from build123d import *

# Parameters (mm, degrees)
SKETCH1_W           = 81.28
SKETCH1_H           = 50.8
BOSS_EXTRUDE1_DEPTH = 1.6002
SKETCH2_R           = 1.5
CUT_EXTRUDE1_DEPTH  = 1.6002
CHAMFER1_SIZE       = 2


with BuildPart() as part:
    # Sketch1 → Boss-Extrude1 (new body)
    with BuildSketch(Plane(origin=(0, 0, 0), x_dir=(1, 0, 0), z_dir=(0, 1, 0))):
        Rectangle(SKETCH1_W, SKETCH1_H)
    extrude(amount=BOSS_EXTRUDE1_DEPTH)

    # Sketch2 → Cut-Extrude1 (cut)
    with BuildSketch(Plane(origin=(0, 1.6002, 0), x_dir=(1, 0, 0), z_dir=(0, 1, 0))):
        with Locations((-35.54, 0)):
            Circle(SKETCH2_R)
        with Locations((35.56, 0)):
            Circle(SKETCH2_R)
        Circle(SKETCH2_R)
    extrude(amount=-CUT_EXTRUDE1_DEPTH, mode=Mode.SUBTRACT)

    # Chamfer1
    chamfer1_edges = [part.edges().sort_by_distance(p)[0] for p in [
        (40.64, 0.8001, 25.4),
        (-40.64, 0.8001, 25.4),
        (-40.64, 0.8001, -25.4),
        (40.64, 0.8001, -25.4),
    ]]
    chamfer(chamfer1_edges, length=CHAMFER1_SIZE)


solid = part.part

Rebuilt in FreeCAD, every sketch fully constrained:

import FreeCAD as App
import Part
import Sketcher
from FreeCAD import Vector
Q = App.Units.Quantity


def edges_at(feature, points):
    """Names of the edges that pass closest to the given points."""
    edges = feature.Shape.Edges
    near = lambda p: min(range(len(edges)), key=lambda i: edges[i].distToShape(Part.Vertex(*p))[0])
    return sorted({f"Edge{near(p) + 1}" for p in points})

doc = App.newDocument("Part")
body = doc.addObject("PartDesign::Body", "Body")

sketch1 = body.newObject("Sketcher::SketchObject", "Sketch")
sketch1.AttachmentSupport = (doc.getObject("XZ_Plane"), [""])
sketch1.MapMode = "FlatFace"
sketch1.addGeometry([
    Part.LineSegment(Vector(-41, -25, 0), Vector(-41, 25, 0)),
    Part.LineSegment(Vector(-41, 25, 0), Vector(41, 25, 0)),
    Part.LineSegment(Vector(41, 25, 0), Vector(41, -25, 0)),
    Part.LineSegment(Vector(41, -25, 0), Vector(-41, -25, 0)),
], False)
sketch1.addConstraint([
    Sketcher.Constraint("Coincident", 0, 2, 1, 1),
    Sketcher.Constraint("Coincident", 1, 2, 2, 1),
    Sketcher.Constraint("Coincident", 2, 2, 3, 1),
    Sketcher.Constraint("Coincident", 3, 2, 0, 1),
    Sketcher.Constraint("Vertical", 0),
    Sketcher.Constraint("Horizontal", 1),
    Sketcher.Constraint("Vertical", 2),
    Sketcher.Constraint("Horizontal", 3),
    Sketcher.Constraint("Symmetric", 0, 2, 2, 2, -1, 1),
    Sketcher.Constraint("DistanceY", 0, 1, 0, 2, Q("2 in")),
    Sketcher.Constraint("DistanceX", 1, 1, 1, 2, Q("3.2 in")),
])
pad1 = body.newObject("PartDesign::Pad", "Pad")
pad1.Profile = sketch1
pad1.Length = Q("0.063 in")
pad1.Reversed = True

sketch2 = body.newObject("Sketcher::SketchObject", "Sketch001")
sketch2.AttachmentSupport = (doc.getObject("XZ_Plane"), [""])
sketch2.MapMode = "FlatFace"
sketch2.AttachmentOffset = App.Placement(Vector(0, 0, -0.063 * 25.4), App.Rotation())
sketch2.addGeometry([
    Part.Circle(Vector(-35.5, 0, 0), Vector(0, 0, 1), 1.5),
    Part.Circle(Vector(35.6, 0, 0), Vector(0, 0, 1), 1.5),
    Part.Circle(Vector(0, 0, 0), Vector(0, 0, 1), 1.5),
], False)
sketch2.addConstraint([
    Sketcher.Constraint("Coincident", 2, 3, -1, 1),
    Sketcher.Constraint("Equal", 0, 1),
    Sketcher.Constraint("Equal", 1, 2),
    Sketcher.Constraint("PointOnObject", 0, 3, -1),
    Sketcher.Constraint("PointOnObject", 1, 3, -1),
    Sketcher.Constraint("DistanceX", -1, 1, 1, 3, Q("1.4 in")),
    Sketcher.Constraint("Diameter", 0, 3.0),
    Sketcher.Constraint("DistanceX", 0, 3, -1, 1, 35.54),
])
pocket1 = body.newObject("PartDesign::Pocket", "Pocket")
pocket1.Profile = sketch2
pocket1.Length = Q("0.063 in")
pocket1.Reversed = True
doc.recompute()

chamfer = body.newObject("PartDesign::Chamfer", "Chamfer")
chamfer.Base = (pocket1, edges_at(pocket1, [
    (40.64, 0.8, 25.4),
    (-40.64, 0.8, 25.4),
    (-40.64, 0.8, -25.4),
    (40.64, 0.8, -25.4),
]))
chamfer.Size = 2

doc.recompute()
